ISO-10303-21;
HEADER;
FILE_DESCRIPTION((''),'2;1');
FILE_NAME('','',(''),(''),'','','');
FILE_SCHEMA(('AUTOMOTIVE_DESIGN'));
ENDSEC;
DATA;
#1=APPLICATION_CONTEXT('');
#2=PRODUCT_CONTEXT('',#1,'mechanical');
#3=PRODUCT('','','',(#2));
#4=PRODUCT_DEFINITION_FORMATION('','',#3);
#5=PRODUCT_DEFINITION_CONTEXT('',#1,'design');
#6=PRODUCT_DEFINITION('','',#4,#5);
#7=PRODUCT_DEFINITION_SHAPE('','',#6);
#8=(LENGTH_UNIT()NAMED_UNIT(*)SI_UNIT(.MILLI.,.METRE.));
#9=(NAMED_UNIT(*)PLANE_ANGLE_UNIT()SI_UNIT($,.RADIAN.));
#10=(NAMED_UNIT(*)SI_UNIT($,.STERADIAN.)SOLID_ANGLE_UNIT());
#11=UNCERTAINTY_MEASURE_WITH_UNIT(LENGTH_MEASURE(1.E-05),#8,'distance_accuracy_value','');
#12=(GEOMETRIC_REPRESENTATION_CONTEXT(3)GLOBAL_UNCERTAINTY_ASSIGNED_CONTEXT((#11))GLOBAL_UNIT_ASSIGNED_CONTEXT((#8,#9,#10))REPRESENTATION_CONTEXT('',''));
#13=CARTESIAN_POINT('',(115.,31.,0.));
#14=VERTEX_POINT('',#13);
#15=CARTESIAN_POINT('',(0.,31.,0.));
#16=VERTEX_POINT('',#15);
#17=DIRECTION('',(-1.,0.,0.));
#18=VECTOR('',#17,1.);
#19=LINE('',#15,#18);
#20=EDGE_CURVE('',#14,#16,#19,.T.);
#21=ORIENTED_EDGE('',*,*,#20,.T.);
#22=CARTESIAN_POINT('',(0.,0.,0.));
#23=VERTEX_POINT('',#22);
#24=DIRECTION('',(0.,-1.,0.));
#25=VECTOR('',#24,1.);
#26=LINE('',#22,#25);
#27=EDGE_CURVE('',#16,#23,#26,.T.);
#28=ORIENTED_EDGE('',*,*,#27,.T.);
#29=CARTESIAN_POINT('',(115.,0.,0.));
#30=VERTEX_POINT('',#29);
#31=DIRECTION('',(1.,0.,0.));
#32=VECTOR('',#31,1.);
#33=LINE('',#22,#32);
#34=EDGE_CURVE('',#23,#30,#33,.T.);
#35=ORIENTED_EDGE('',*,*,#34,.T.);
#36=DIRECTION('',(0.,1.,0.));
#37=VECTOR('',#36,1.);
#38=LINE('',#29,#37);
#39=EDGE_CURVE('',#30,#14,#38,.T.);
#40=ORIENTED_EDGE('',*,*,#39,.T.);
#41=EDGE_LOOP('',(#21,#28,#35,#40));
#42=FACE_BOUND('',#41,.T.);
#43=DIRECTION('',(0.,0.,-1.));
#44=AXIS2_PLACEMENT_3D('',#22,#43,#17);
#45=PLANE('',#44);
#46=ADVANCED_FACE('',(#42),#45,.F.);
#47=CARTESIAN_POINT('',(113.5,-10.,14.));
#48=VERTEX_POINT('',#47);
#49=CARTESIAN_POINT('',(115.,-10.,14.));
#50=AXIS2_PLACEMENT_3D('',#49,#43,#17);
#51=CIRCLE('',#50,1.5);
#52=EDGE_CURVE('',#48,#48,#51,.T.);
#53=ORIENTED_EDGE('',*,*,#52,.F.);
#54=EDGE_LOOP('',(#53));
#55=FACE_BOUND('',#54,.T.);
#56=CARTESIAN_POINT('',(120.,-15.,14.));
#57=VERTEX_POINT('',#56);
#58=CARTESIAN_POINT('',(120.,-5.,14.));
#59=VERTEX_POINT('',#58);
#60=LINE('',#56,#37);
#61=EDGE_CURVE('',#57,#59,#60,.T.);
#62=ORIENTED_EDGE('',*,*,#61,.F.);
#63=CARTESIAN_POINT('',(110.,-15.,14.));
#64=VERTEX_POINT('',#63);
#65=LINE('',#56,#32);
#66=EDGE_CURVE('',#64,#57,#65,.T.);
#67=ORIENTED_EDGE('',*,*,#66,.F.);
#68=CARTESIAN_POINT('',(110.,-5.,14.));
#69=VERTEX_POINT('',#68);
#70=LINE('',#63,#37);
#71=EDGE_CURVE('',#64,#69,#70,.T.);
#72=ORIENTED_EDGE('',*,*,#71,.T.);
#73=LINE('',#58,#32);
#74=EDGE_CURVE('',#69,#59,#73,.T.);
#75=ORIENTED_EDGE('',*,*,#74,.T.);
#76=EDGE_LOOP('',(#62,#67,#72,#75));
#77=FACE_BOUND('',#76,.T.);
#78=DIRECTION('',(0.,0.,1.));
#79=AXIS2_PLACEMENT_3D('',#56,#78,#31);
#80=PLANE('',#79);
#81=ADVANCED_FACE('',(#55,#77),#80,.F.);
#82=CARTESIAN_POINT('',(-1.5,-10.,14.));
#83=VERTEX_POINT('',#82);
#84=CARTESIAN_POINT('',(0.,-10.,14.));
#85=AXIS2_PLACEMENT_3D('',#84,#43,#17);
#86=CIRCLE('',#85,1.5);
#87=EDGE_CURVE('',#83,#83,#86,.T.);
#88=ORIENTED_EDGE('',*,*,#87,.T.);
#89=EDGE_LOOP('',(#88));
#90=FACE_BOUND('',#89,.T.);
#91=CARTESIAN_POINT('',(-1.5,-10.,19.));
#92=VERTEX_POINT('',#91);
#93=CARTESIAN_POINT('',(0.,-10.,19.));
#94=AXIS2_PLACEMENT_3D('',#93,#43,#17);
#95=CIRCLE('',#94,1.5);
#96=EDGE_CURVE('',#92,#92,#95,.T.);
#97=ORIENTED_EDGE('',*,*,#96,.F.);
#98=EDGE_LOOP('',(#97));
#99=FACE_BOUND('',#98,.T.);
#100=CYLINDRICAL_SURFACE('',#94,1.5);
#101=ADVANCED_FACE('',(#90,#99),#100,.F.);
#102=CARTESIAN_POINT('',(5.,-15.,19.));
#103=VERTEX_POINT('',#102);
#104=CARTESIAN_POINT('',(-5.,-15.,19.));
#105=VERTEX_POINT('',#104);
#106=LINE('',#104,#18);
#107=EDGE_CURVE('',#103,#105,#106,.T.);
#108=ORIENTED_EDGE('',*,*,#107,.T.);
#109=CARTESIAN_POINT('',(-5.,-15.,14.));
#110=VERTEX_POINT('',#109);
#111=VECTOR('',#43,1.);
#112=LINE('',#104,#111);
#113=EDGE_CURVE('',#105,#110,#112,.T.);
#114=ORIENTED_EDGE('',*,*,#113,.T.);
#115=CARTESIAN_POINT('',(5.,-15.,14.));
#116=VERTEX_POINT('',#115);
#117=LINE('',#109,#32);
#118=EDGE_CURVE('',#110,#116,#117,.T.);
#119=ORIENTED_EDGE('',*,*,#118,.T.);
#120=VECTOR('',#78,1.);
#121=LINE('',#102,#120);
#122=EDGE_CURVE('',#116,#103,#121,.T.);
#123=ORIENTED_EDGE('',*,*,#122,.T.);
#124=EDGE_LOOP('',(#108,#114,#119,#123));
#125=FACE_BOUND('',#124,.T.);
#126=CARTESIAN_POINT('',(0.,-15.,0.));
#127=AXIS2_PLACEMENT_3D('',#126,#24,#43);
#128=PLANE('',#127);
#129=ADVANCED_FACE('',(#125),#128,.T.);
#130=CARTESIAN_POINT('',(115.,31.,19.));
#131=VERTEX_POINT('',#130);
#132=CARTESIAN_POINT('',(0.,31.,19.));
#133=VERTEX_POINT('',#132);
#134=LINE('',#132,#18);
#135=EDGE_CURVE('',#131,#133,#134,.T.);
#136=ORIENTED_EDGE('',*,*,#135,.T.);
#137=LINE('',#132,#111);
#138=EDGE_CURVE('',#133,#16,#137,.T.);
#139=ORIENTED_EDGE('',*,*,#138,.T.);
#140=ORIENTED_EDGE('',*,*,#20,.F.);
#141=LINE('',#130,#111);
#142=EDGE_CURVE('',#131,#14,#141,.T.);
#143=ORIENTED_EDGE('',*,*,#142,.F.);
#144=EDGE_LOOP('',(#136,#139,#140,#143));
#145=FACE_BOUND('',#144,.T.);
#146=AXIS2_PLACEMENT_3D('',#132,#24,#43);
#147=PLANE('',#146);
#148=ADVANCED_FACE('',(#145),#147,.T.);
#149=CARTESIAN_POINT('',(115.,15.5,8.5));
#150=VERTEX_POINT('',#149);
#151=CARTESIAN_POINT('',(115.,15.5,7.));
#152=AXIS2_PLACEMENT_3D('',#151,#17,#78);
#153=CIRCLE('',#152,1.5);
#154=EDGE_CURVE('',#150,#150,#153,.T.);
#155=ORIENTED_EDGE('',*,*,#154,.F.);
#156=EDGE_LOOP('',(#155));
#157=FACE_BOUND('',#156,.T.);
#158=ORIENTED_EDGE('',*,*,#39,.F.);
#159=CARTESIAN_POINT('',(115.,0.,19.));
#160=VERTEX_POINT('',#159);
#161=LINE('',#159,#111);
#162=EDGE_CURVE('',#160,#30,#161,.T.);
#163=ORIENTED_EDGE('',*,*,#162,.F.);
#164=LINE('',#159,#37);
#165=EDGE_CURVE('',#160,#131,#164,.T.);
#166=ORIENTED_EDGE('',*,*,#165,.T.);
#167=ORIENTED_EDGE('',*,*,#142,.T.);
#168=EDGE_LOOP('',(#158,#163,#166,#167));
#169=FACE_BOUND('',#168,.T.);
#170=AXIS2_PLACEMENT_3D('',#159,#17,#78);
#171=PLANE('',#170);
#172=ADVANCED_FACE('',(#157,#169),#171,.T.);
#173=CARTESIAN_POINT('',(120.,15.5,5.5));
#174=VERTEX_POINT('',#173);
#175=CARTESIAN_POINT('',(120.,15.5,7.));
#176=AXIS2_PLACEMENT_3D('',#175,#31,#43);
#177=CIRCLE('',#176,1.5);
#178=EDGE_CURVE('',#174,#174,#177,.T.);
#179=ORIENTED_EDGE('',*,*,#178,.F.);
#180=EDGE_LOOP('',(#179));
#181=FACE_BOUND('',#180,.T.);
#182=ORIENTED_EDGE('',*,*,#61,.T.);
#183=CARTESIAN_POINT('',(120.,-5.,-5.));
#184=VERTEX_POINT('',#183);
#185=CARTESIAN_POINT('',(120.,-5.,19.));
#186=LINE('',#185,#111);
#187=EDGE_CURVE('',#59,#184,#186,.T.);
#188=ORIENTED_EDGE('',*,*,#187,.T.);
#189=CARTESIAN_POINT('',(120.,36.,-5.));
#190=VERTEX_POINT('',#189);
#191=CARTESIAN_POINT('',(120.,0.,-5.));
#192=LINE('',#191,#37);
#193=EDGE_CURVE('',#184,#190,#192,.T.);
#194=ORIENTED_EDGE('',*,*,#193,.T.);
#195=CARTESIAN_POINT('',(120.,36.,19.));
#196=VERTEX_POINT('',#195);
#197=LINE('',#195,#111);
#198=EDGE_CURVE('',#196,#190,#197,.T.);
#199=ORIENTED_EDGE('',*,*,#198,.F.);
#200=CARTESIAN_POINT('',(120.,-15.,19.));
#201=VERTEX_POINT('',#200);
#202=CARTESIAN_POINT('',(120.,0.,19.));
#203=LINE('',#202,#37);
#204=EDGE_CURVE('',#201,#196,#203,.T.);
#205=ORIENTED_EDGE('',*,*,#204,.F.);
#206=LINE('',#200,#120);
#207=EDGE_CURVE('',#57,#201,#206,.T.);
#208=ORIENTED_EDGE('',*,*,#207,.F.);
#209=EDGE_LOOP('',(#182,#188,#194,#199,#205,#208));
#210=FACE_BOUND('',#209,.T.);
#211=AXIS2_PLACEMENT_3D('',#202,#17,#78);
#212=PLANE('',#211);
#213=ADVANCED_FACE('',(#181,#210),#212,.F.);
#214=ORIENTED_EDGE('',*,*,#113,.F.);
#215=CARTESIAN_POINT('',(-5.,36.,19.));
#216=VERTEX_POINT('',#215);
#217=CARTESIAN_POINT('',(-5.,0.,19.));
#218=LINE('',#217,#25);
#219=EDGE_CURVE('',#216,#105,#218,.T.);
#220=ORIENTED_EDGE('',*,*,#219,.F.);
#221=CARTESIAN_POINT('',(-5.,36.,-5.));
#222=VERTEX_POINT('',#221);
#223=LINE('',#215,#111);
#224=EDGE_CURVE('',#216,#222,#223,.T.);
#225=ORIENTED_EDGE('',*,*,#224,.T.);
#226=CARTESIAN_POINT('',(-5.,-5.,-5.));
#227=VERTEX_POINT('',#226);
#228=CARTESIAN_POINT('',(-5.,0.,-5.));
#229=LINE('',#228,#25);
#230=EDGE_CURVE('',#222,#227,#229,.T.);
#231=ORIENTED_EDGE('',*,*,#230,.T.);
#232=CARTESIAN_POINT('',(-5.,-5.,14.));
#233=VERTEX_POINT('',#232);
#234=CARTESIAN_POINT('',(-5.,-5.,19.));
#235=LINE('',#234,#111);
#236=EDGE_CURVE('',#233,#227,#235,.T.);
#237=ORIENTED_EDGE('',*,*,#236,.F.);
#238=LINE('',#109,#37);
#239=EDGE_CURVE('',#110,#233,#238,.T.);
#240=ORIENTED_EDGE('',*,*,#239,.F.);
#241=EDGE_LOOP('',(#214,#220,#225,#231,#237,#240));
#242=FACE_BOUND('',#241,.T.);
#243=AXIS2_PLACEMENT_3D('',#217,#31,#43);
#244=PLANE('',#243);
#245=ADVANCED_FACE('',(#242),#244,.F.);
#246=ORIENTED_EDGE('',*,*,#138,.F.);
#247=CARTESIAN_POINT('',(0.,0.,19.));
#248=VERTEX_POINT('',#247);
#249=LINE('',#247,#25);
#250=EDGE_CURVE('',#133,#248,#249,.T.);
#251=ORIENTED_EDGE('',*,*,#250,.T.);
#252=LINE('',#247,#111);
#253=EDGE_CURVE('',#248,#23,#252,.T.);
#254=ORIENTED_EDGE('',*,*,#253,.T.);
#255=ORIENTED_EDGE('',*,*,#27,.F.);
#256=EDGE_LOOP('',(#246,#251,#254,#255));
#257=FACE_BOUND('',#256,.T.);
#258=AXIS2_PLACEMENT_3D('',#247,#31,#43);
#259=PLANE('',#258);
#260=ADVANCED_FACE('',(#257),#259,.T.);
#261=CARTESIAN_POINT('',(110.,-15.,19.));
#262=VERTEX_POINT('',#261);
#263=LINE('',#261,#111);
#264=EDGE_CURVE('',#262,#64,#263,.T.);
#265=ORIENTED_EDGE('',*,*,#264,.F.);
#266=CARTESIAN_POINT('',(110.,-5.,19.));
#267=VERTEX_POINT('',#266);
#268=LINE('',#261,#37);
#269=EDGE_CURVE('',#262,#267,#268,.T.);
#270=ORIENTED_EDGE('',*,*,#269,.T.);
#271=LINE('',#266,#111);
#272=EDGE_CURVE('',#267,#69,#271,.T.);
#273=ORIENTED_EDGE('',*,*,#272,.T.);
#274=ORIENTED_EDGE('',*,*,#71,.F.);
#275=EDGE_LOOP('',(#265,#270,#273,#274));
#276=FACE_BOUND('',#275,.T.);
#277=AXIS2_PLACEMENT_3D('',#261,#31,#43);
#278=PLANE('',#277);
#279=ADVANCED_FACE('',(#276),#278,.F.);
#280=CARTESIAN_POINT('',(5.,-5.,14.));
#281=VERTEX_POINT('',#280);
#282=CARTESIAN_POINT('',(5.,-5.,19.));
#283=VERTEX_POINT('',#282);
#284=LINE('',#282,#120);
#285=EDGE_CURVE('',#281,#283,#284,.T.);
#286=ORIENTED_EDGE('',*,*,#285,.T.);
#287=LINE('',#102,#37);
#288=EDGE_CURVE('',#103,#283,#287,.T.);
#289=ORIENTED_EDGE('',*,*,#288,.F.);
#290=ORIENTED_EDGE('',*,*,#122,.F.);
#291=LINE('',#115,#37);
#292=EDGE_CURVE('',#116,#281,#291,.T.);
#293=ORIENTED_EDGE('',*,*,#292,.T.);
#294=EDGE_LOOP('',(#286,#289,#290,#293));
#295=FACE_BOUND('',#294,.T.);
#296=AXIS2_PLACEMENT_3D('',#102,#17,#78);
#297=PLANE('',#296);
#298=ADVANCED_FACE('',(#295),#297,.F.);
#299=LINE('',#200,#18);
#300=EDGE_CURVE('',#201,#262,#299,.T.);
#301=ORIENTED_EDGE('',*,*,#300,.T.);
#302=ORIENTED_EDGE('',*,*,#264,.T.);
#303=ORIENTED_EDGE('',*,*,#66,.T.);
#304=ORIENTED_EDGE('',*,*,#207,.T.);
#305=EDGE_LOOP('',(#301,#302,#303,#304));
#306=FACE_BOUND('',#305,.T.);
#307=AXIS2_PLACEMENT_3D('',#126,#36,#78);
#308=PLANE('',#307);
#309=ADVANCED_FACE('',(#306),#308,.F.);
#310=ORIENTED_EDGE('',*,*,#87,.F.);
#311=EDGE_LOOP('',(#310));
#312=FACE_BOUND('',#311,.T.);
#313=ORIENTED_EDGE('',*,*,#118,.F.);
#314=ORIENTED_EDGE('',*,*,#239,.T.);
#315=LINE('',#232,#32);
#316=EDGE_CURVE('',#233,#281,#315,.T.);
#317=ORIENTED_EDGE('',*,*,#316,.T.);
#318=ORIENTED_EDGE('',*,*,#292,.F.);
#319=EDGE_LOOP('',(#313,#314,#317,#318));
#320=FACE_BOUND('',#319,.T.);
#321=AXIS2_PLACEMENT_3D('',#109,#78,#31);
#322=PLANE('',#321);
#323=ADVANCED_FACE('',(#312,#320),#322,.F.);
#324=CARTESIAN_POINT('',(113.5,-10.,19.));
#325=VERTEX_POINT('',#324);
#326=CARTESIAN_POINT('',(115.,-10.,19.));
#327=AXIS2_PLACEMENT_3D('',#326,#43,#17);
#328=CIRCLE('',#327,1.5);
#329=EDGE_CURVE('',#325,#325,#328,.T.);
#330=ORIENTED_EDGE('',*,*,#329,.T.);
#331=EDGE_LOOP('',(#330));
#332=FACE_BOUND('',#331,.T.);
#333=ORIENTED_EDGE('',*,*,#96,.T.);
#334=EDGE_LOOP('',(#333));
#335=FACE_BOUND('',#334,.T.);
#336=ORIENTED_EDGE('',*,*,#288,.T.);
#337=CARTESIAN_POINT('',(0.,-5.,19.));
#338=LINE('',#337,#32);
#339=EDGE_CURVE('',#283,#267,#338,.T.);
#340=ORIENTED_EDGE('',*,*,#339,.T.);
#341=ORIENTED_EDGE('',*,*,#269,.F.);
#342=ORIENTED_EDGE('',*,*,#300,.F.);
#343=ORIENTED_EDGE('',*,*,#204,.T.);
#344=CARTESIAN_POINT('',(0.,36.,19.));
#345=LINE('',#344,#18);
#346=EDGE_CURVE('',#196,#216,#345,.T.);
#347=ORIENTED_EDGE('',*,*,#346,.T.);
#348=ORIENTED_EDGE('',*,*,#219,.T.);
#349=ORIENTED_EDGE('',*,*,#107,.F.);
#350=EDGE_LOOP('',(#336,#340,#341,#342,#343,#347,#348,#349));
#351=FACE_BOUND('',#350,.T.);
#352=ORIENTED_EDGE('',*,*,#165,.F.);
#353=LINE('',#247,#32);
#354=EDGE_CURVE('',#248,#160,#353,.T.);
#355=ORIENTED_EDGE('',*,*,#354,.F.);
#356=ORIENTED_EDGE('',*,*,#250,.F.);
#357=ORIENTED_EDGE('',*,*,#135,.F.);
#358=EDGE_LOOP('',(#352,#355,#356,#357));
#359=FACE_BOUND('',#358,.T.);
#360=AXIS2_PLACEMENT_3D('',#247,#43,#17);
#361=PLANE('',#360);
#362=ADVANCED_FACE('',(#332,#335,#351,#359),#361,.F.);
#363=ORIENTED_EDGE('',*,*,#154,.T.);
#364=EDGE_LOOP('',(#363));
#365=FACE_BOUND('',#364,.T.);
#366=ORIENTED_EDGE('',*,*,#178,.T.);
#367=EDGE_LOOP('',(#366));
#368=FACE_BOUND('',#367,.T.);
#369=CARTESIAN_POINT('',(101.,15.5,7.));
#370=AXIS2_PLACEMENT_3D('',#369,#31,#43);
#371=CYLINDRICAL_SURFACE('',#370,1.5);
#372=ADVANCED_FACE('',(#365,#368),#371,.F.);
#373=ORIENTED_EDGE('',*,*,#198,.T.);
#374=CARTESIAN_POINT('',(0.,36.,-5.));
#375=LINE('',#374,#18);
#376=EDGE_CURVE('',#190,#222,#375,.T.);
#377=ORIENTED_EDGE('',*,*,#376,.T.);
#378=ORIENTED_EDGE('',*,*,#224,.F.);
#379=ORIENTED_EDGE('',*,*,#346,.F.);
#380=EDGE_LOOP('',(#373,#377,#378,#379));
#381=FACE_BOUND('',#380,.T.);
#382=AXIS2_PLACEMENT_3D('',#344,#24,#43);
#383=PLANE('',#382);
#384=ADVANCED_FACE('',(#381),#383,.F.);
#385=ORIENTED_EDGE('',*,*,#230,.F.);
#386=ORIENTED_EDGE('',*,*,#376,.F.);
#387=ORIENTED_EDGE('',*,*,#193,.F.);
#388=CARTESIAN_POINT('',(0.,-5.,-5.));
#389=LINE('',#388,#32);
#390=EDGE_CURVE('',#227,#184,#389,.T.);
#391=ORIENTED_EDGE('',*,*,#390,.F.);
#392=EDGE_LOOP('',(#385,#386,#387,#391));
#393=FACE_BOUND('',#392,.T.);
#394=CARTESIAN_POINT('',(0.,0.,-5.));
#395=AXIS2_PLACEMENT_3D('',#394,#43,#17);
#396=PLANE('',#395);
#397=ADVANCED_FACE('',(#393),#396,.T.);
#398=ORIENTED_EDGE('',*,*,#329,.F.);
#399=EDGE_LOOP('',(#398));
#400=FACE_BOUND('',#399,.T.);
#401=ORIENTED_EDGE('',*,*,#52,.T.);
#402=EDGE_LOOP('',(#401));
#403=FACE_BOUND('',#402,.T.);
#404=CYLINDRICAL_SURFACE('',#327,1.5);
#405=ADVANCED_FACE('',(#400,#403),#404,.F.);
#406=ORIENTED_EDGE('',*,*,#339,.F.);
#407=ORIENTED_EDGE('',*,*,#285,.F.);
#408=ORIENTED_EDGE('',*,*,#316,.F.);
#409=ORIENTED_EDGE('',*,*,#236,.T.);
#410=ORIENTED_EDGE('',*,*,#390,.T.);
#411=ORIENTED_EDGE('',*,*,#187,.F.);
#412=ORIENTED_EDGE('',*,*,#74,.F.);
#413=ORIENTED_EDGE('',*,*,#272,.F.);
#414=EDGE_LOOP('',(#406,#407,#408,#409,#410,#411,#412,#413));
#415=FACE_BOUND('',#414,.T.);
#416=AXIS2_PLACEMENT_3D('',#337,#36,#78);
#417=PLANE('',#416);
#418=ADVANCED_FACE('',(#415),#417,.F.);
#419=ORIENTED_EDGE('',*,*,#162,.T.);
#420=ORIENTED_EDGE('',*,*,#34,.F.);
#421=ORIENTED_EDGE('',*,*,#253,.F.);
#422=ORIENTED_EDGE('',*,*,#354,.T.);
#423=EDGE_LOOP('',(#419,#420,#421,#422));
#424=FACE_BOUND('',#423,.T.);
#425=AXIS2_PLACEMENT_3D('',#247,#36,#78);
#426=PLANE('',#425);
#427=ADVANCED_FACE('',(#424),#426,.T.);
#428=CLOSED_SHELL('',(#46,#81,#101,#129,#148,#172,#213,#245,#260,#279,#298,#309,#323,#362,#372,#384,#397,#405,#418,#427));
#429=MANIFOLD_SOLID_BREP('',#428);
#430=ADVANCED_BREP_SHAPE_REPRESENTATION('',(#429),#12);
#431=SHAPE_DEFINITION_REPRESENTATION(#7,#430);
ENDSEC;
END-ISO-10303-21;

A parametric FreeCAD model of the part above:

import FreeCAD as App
import Part
import Sketcher


def faces_at(feature, points):
    """Names of the faces that lie closest to the given points."""
    faces = feature.Shape.Faces
    near = lambda p: min(range(len(faces)), key=lambda i: faces[i].distToShape(Part.Vertex(*p))[0])
    return sorted({f"Face{near(p) + 1}" for p in points})

doc = App.newDocument("Part")
body = doc.addObject("PartDesign::Body", "Body")

# Sketch on XY plane
sketch1 = body.newObject("Sketcher::SketchObject", "Sketch")
sketch1.AttachmentSupport = (doc.getObject("XY_Plane"), [""])
sketch1.MapMode = "FlatFace"
sketch1.addGeometry([
    Part.LineSegment(App.Vector(0, 31, 0), App.Vector(0, 0, 0)),
    Part.LineSegment(App.Vector(0, 0, 0), App.Vector(115, 0, 0)),
    Part.LineSegment(App.Vector(115, 0, 0), App.Vector(115, 31, 0)),
    Part.LineSegment(App.Vector(115, 31, 0), App.Vector(0, 31, 0)),
], False)
sketch1.addConstraint([
    Sketcher.Constraint("Coincident", 0, 2, 1, 1),
    Sketcher.Constraint("Coincident", 1, 2, 2, 1),
    Sketcher.Constraint("Coincident", 2, 2, 3, 1),
    Sketcher.Constraint("Coincident", 3, 2, 0, 1),
    Sketcher.Constraint("Vertical", 0),
    Sketcher.Constraint("Horizontal", 1),
    Sketcher.Constraint("Vertical", 2),
    Sketcher.Constraint("Horizontal", 3),
    Sketcher.Constraint("Coincident", 0, 2, -1, 1),
    Sketcher.Constraint("DistanceX", 1, 1, 1, 2, 115.0),
    Sketcher.Constraint("DistanceY", 0, 2, 0, 1, 31.0),
])
pad1 = body.newObject("PartDesign::Pad", "Pad")
pad1.Profile = sketch1
pad1.Length = 19
doc.recompute()

thickness = body.newObject("PartDesign::Thickness", "Thickness")
thickness.Base = (pad1, faces_at(pad1, [(57.5, 15.5, 19)]))
thickness.Value = 5
thickness.Reversed = False
thickness.Join = "Intersection"

# Sketch on YZ plane
sketch2 = body.newObject("Sketcher::SketchObject", "Sketch001")
sketch2.AttachmentSupport = (doc.getObject("YZ_Plane"), [""])
sketch2.MapMode = "FlatFace"
sketch2.AttachmentOffset = App.Placement(App.Vector(0, 0, 120), App.Rotation())
sketch2.addGeometry(Part.Circle(App.Vector(15.5, 7, 0), App.Vector(0, 0, 1), 1.5), False)
sketch2.addConstraint([
    Sketcher.Constraint("Diameter", 0, 3.0),
    Sketcher.Constraint("DistanceY", -1, 1, 0, 3, 7.0),
    Sketcher.Constraint("DistanceX", -1, 1, 0, 3, 15.5),
])
pocket1 = body.newObject("PartDesign::Pocket", "Pocket")
pocket1.Profile = sketch2
pocket1.Length = 19

# Sketch on XZ plane
sketch3 = body.newObject("Sketcher::SketchObject", "Sketch002")
sketch3.AttachmentSupport = (doc.getObject("XZ_Plane"), [""])
sketch3.MapMode = "FlatFace"
sketch3.AttachmentOffset = App.Placement(App.Vector(0, 0, 5), App.Rotation())
sketch3.addGeometry([
    Part.LineSegment(App.Vector(5, 14, 0), App.Vector(5, 19, 0)),  # 0
    Part.LineSegment(App.Vector(5, 19, 0), App.Vector(-5, 19, 0)),  # 1
    Part.LineSegment(App.Vector(-5, 19, 0), App.Vector(-5, 14, 0)),  # 2
    Part.LineSegment(App.Vector(-5, 14, 0), App.Vector(5, 14, 0)),  # 3
    Part.LineSegment(App.Vector(120, 14, 0), App.Vector(120, 19, 0)),  # 4
    Part.LineSegment(App.Vector(120, 19, 0), App.Vector(110, 19, 0)),  # 5
    Part.LineSegment(App.Vector(110, 19, 0), App.Vector(110, 14, 0)),  # 6
    Part.LineSegment(App.Vector(110, 14, 0), App.Vector(120, 14, 0)),  # 7
], False)
sketch3.addConstraint([
    Sketcher.Constraint("Coincident", 0, 2, 1, 1),
    Sketcher.Constraint("Coincident", 1, 2, 2, 1),
    Sketcher.Constraint("Coincident", 2, 2, 3, 1),
    Sketcher.Constraint("Coincident", 3, 2, 0, 1),
    Sketcher.Constraint("Coincident", 4, 2, 5, 1),
    Sketcher.Constraint("Coincident", 5, 2, 6, 1),
    Sketcher.Constraint("Coincident", 6, 2, 7, 1),
    Sketcher.Constraint("Coincident", 7, 2, 4, 1),
    Sketcher.Constraint("Vertical", 0),
    Sketcher.Constraint("Horizontal", 1),
    Sketcher.Constraint("Vertical", 2),
    Sketcher.Constraint("Horizontal", 3),
    Sketcher.Constraint("Vertical", 4),
    Sketcher.Constraint("Horizontal", 5),
    Sketcher.Constraint("Vertical", 6),
    Sketcher.Constraint("Horizontal", 7),
    Sketcher.Constraint("Horizontal", 1, 2, 4, 2),
    Sketcher.Constraint("Horizontal", 3, 2, 6, 2),
    Sketcher.Constraint("Equal", 3, 5),
    Sketcher.Constraint("DistanceX", 1, 2, 1, 1, 10.0),
    Sketcher.Constraint("DistanceY", 0, 1, 0, 2, 5.0),
    Sketcher.Constraint("DistanceX", -1, 1, 0, 2, 5.0),
    Sketcher.Constraint("DistanceY", -1, 1, 0, 2, 19.0),
    Sketcher.Constraint("DistanceX", -1, 1, 4, 2, 120.0),
])
pad2 = body.newObject("PartDesign::Pad", "Pad001")
pad2.Profile = sketch3
pad2.Length = 10

# Sketch on XY plane
sketch4 = body.newObject("Sketcher::SketchObject", "Sketch003")
sketch4.AttachmentSupport = (doc.getObject("XY_Plane"), [""])
sketch4.MapMode = "FlatFace"
sketch4.AttachmentOffset = App.Placement(App.Vector(0, 0, 14), App.Rotation())
sketch4.addGeometry([
    Part.Circle(App.Vector(0, -10, 0), App.Vector(0, 0, 1), 1.5),
    Part.Circle(App.Vector(115, -10, 0), App.Vector(0, 0, 1), 1.5),
], False)
sketch4.addConstraint([
    Sketcher.Constraint("Equal", 0, 1),
    Sketcher.Constraint("PointOnObject", 0, 3, -2),
    Sketcher.Constraint("Horizontal", 0, 3, 1, 3),
    Sketcher.Constraint("Diameter", 0, 3.0),
    Sketcher.Constraint("DistanceY", 0, 3, -1, 1, 10.0),
    Sketcher.Constraint("DistanceX", -1, 1, 1, 3, 115.0),
])
pocket2 = body.newObject("PartDesign::Pocket", "Pocket001")
pocket2.Profile = sketch4
pocket2.Type = "ThroughAll"
pocket2.Reversed = True

doc.recompute()
